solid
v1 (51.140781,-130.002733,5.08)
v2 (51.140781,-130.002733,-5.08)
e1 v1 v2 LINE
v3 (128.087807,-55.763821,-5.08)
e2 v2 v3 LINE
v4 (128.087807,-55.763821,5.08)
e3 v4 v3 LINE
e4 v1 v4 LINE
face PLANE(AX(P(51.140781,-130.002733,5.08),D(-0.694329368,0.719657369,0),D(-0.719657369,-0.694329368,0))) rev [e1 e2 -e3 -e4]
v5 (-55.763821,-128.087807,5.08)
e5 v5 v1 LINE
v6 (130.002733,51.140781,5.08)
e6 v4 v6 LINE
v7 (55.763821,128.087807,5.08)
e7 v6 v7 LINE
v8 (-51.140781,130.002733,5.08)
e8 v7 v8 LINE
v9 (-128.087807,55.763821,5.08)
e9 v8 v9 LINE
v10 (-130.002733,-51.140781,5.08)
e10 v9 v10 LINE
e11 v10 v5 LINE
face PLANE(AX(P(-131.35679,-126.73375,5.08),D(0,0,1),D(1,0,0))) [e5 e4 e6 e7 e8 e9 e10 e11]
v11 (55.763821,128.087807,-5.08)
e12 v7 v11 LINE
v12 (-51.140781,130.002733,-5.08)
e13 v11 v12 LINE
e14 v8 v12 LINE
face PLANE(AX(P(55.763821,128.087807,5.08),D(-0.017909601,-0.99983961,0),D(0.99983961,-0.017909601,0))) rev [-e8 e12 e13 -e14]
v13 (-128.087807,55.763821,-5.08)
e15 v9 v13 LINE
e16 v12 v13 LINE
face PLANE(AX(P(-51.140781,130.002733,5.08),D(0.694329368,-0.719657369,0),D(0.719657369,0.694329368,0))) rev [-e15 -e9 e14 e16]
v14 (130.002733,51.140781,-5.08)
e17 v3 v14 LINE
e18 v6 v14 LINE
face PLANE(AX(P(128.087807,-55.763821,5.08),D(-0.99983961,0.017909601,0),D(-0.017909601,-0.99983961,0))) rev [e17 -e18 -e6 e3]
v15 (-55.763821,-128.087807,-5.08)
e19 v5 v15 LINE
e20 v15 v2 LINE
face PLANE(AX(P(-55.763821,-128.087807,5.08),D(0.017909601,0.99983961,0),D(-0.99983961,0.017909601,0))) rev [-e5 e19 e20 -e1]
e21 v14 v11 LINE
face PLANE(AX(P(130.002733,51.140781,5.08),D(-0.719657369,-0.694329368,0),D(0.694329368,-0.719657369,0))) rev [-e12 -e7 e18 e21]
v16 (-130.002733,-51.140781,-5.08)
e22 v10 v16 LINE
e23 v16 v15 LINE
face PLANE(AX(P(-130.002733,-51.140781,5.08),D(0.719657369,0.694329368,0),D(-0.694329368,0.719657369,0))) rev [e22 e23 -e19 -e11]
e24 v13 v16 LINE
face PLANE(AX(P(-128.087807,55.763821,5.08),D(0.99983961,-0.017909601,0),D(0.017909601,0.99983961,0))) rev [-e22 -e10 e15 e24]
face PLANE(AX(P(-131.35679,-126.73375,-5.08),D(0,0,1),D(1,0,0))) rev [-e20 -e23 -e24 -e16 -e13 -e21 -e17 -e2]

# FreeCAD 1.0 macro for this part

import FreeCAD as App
import Part
import Sketcher
Q = App.Units.Quantity

doc = App.newDocument("Part")
body = doc.addObject("PartDesign::Body", "Body")

sketch1 = body.newObject("Sketcher::SketchObject", "Sketch")
sketch1.AttachmentSupport = (doc.getObject("XY_Plane"), [""])
sketch1.MapMode = "FlatFace"
sketch1.addGeometry(Part.LineSegment(App.Vector(-130, -51, 0), App.Vector(-56, -128, 0)), False)
sketch1.addGeometry(Part.LineSegment(App.Vector(-56, -128, 0), App.Vector(51, -130, 0)), False)
sketch1.addGeometry(Part.LineSegment(App.Vector(51, -130, 0), App.Vector(128, -56, 0)), False)
sketch1.addGeometry(Part.LineSegment(App.Vector(128, -56, 0), App.Vector(130, 51, 0)), False)
sketch1.addGeometry(Part.LineSegment(App.Vector(130, 51, 0), App.Vector(56, 128, 0)), False)
sketch1.addGeometry(Part.LineSegment(App.Vector(56, 128, 0), App.Vector(-51, 130, 0)), False)
sketch1.addGeometry(Part.LineSegment(App.Vector(-51, 130, 0), App.Vector(-128, 56, 0)), False)
sketch1.addGeometry(Part.LineSegment(App.Vector(-128, 56, 0), App.Vector(-130, -51, 0)), False)
sketch1.addConstraint(Sketcher.Constraint("Coincident", 0, 2, 1, 1))
sketch1.addConstraint(Sketcher.Constraint("Coincident", 1, 2, 2, 1))
sketch1.addConstraint(Sketcher.Constraint("Coincident", 2, 2, 3, 1))
sketch1.addConstraint(Sketcher.Constraint("Coincident", 3, 2, 4, 1))
sketch1.addConstraint(Sketcher.Constraint("Coincident", 4, 2, 5, 1))
sketch1.addConstraint(Sketcher.Constraint("Coincident", 5, 2, 6, 1))
sketch1.addConstraint(Sketcher.Constraint("Coincident", 6, 2, 7, 1))
sketch1.addConstraint(Sketcher.Constraint("Coincident", 7, 2, 0, 1))
sketch1.addConstraint(Sketcher.Constraint("Symmetric", 0, 2, 4, 2, -1, 1))
sketch1.addConstraint(Sketcher.Constraint("Symmetric", 1, 2, 5, 2, -1, 1))
sketch1.addConstraint(Sketcher.Constraint("Symmetric", 2, 2, 6, 2, -1, 1))
sketch1.addConstraint(Sketcher.Constraint("Symmetric", 3, 2, 7, 2, -1, 1))
sketch1.addConstraint(Sketcher.Constraint("Perpendicular", 0, 2))
sketch1.addConstraint(Sketcher.Constraint("Perpendicular", 1, 3))
sketch1.addConstraint(Sketcher.Constraint("Equal", 0, 1))
sketch1.addConstraint(Sketcher.Constraint("Equal", 1, 2))
sketch1.addConstraint(Sketcher.Constraint("Equal", 2, 3))
sketch1.addConstraint(Sketcher.Constraint("DistanceX", 0, 2, 1, 2, 106.904602))
sketch1.addConstraint(Sketcher.Constraint("Distance", 0, 106.921751))
sketch1.addConstraint(Sketcher.Constraint("DistanceX", 0, 2, -1, 1, 55.763821))
pad1 = body.newObject("PartDesign::Pad", "Pad")
pad1.Profile = sketch1
pad1.Length = Q("0.4 in")
pad1.Midplane = True

doc.recompute()
